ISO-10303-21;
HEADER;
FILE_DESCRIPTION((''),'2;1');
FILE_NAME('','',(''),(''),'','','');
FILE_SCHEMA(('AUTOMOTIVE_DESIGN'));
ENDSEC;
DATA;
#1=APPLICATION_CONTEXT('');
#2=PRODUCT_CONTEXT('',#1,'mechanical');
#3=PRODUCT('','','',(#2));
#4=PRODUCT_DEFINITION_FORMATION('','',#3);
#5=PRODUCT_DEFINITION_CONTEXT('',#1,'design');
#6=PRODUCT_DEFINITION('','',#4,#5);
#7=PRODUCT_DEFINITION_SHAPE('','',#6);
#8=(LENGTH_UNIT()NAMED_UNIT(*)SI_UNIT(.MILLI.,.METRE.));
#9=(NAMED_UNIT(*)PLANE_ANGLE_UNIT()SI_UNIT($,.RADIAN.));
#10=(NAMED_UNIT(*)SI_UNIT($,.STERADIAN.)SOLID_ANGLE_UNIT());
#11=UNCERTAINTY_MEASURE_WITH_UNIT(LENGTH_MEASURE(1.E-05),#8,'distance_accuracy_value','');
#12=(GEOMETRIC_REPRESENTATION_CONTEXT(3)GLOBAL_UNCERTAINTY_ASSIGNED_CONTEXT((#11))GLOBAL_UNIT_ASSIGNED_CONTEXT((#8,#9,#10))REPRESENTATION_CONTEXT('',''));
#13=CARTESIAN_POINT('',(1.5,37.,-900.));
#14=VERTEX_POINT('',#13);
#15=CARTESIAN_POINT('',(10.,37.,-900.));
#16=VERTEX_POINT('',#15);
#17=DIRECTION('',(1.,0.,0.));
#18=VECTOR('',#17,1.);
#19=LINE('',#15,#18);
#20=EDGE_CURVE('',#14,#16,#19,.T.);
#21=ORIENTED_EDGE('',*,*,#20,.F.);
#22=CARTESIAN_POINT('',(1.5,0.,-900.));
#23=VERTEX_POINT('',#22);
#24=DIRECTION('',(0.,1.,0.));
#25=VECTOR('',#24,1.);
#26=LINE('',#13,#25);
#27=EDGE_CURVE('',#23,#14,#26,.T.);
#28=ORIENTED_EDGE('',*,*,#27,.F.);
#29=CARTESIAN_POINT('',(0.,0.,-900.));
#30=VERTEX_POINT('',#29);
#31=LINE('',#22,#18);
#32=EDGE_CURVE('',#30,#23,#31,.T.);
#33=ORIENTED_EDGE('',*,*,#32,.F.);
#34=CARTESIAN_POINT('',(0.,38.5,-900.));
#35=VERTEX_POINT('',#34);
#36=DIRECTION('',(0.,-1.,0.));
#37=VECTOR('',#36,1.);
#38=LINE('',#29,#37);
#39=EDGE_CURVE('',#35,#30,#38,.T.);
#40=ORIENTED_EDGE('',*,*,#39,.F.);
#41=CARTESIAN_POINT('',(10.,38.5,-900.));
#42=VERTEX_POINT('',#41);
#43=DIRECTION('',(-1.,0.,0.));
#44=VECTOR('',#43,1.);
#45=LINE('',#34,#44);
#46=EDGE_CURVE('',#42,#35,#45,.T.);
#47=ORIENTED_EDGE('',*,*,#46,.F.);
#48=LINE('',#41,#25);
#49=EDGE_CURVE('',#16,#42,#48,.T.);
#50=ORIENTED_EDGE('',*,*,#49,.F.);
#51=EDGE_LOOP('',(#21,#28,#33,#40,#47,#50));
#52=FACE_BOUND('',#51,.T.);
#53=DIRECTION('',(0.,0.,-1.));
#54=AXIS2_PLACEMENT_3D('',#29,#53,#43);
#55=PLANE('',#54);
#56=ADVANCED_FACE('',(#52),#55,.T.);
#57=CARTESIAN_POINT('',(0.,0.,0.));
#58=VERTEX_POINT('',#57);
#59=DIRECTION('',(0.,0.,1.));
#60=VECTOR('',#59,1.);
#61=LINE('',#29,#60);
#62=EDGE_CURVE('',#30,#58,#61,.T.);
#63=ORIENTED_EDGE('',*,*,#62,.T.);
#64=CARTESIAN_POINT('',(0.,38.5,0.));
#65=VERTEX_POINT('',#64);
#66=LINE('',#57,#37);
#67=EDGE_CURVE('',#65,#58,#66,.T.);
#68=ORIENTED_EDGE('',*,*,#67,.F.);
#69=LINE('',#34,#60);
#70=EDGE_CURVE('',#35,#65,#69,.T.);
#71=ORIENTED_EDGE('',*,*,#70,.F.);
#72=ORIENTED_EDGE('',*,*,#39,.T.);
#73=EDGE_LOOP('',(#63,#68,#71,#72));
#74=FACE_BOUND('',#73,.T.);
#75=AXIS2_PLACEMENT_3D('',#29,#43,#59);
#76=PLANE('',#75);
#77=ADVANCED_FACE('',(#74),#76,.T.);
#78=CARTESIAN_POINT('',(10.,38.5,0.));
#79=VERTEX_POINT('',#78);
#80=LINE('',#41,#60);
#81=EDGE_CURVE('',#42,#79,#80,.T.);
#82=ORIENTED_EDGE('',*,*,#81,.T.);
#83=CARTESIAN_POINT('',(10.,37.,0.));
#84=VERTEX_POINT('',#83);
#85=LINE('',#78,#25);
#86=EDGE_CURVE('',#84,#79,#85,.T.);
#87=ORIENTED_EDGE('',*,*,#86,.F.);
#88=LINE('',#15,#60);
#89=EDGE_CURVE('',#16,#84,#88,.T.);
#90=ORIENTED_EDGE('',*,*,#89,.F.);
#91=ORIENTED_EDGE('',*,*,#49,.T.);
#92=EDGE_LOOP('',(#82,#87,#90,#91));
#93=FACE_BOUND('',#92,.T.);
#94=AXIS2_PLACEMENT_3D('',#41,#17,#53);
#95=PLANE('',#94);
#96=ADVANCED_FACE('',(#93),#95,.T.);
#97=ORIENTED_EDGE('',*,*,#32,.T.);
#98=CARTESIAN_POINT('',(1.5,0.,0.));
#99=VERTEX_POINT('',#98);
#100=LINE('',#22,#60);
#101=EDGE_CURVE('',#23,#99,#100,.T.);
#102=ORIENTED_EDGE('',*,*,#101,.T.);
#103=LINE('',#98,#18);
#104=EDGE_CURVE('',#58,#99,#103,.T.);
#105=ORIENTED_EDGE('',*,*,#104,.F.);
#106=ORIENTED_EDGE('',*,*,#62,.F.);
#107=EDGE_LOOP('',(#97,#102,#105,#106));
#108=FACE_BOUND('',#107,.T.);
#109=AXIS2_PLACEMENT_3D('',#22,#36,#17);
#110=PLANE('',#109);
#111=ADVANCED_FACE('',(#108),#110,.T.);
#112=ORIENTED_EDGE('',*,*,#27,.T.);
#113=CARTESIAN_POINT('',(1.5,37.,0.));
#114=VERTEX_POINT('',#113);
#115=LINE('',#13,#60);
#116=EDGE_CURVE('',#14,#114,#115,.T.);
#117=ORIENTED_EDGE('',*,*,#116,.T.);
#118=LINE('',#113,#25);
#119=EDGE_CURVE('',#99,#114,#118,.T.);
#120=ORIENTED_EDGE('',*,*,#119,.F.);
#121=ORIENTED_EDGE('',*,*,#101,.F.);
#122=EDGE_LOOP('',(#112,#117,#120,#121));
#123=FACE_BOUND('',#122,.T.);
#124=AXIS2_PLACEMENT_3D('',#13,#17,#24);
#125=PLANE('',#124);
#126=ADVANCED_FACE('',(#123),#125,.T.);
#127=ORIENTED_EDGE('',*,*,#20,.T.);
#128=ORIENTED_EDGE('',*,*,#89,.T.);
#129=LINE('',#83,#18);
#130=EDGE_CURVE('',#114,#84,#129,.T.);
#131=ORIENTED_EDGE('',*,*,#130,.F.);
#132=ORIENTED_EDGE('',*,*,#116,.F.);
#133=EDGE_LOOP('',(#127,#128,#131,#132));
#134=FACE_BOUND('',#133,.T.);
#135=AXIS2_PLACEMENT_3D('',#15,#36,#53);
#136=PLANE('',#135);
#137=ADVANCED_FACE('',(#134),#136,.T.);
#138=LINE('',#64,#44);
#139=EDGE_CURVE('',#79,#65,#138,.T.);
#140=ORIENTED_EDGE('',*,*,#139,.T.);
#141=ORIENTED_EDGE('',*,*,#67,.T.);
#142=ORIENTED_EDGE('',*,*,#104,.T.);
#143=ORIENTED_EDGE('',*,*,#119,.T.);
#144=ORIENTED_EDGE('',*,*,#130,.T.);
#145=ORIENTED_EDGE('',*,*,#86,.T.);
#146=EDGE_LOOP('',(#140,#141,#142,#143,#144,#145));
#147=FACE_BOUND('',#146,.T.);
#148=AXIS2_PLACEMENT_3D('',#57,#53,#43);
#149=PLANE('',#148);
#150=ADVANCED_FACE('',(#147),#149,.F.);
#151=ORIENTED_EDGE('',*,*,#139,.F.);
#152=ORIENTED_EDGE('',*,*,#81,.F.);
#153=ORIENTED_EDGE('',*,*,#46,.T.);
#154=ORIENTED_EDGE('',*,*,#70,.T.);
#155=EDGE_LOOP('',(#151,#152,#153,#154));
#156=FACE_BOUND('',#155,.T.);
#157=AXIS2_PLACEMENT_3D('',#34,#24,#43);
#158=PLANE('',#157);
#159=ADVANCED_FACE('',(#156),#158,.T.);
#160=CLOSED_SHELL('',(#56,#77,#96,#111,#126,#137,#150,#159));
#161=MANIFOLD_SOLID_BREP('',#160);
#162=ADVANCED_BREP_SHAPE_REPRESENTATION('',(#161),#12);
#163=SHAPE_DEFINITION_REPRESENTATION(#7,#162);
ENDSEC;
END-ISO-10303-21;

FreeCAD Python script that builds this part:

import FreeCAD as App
import Part
import Sketcher
Q = App.Units.Quantity


def add_polygon(sketch, points):
    """Adds a closed chain of lines whose ends are joined by coincident constraints."""
    first, n = sketch.GeometryCount, len(points)
    for a, b in zip(points, points[1:] + points[:1]):
        sketch.addGeometry(Part.LineSegment(App.Vector(*a, 0), App.Vector(*b, 0)), False)
    for i in range(n):
        sketch.addConstraint(Sketcher.Constraint("Coincident", first + i, 2, first + (i + 1) % n, 1))

doc = App.newDocument("Part")
params = doc.addObject("Spreadsheet::Sheet", "Params")
for row, (alias, value) in enumerate([
    ("sketch1_width", "10 mm"),
    ("sketch1_height", "37 mm"),
    ("sketch1_width2", "1.5 mm"),
    ("pad1_length", "900 mm"),
], start=1):
    params.set(f"A{row}", alias)
    params.set(f"B{row}", "=" + value)
    params.setAlias(f"B{row}", alias)

body = doc.addObject("PartDesign::Body", "Body")

# Sketch on XY plane
sketch1 = body.newObject("Sketcher::SketchObject", "Sketch")
sketch1.AttachmentSupport = (doc.getObject("XY_Plane"), [""])
sketch1.MapMode = "FlatFace"
add_polygon(sketch1, [(0, 38.5), (0, 0), (1.5, 0), (1.5, 37), (10, 37), (10, 38.5)])  # lines 0-5
sketch1.addConstraint(Sketcher.Constraint("Vertical", 0))
sketch1.addConstraint(Sketcher.Constraint("Horizontal", 1))
sketch1.addConstraint(Sketcher.Constraint("Vertical", 2))
sketch1.addConstraint(Sketcher.Constraint("Horizontal", 3))
sketch1.addConstraint(Sketcher.Constraint("Vertical", 4))
sketch1.addConstraint(Sketcher.Constraint("Horizontal", 5))
sketch1.addConstraint(Sketcher.Constraint("Coincident", 0, 2, -1, 1))
sketch1.addConstraint(Sketcher.Constraint("Equal", 1, 4))
sketch1.addConstraint(Sketcher.Constraint("DistanceX", 5, 2, 5, 1, Q("10 mm")))
sketch1.addConstraint(Sketcher.Constraint("DistanceY", 2, 1, 2, 2, Q("37 mm")))
sketch1.addConstraint(Sketcher.Constraint("DistanceX", 1, 1, 1, 2, Q("1.5 mm")))
sketch1.setExpression("Constraints[14]", "Params.sketch1_width")
sketch1.setExpression("Constraints[15]", "Params.sketch1_height")
sketch1.setExpression("Constraints[16]", "Params.sketch1_width2")
pad1 = body.newObject("PartDesign::Pad", "Pad")
pad1.Profile = sketch1
pad1.setExpression("Length", "Params.pad1_length")
pad1.Reversed = True

doc.recompute()
